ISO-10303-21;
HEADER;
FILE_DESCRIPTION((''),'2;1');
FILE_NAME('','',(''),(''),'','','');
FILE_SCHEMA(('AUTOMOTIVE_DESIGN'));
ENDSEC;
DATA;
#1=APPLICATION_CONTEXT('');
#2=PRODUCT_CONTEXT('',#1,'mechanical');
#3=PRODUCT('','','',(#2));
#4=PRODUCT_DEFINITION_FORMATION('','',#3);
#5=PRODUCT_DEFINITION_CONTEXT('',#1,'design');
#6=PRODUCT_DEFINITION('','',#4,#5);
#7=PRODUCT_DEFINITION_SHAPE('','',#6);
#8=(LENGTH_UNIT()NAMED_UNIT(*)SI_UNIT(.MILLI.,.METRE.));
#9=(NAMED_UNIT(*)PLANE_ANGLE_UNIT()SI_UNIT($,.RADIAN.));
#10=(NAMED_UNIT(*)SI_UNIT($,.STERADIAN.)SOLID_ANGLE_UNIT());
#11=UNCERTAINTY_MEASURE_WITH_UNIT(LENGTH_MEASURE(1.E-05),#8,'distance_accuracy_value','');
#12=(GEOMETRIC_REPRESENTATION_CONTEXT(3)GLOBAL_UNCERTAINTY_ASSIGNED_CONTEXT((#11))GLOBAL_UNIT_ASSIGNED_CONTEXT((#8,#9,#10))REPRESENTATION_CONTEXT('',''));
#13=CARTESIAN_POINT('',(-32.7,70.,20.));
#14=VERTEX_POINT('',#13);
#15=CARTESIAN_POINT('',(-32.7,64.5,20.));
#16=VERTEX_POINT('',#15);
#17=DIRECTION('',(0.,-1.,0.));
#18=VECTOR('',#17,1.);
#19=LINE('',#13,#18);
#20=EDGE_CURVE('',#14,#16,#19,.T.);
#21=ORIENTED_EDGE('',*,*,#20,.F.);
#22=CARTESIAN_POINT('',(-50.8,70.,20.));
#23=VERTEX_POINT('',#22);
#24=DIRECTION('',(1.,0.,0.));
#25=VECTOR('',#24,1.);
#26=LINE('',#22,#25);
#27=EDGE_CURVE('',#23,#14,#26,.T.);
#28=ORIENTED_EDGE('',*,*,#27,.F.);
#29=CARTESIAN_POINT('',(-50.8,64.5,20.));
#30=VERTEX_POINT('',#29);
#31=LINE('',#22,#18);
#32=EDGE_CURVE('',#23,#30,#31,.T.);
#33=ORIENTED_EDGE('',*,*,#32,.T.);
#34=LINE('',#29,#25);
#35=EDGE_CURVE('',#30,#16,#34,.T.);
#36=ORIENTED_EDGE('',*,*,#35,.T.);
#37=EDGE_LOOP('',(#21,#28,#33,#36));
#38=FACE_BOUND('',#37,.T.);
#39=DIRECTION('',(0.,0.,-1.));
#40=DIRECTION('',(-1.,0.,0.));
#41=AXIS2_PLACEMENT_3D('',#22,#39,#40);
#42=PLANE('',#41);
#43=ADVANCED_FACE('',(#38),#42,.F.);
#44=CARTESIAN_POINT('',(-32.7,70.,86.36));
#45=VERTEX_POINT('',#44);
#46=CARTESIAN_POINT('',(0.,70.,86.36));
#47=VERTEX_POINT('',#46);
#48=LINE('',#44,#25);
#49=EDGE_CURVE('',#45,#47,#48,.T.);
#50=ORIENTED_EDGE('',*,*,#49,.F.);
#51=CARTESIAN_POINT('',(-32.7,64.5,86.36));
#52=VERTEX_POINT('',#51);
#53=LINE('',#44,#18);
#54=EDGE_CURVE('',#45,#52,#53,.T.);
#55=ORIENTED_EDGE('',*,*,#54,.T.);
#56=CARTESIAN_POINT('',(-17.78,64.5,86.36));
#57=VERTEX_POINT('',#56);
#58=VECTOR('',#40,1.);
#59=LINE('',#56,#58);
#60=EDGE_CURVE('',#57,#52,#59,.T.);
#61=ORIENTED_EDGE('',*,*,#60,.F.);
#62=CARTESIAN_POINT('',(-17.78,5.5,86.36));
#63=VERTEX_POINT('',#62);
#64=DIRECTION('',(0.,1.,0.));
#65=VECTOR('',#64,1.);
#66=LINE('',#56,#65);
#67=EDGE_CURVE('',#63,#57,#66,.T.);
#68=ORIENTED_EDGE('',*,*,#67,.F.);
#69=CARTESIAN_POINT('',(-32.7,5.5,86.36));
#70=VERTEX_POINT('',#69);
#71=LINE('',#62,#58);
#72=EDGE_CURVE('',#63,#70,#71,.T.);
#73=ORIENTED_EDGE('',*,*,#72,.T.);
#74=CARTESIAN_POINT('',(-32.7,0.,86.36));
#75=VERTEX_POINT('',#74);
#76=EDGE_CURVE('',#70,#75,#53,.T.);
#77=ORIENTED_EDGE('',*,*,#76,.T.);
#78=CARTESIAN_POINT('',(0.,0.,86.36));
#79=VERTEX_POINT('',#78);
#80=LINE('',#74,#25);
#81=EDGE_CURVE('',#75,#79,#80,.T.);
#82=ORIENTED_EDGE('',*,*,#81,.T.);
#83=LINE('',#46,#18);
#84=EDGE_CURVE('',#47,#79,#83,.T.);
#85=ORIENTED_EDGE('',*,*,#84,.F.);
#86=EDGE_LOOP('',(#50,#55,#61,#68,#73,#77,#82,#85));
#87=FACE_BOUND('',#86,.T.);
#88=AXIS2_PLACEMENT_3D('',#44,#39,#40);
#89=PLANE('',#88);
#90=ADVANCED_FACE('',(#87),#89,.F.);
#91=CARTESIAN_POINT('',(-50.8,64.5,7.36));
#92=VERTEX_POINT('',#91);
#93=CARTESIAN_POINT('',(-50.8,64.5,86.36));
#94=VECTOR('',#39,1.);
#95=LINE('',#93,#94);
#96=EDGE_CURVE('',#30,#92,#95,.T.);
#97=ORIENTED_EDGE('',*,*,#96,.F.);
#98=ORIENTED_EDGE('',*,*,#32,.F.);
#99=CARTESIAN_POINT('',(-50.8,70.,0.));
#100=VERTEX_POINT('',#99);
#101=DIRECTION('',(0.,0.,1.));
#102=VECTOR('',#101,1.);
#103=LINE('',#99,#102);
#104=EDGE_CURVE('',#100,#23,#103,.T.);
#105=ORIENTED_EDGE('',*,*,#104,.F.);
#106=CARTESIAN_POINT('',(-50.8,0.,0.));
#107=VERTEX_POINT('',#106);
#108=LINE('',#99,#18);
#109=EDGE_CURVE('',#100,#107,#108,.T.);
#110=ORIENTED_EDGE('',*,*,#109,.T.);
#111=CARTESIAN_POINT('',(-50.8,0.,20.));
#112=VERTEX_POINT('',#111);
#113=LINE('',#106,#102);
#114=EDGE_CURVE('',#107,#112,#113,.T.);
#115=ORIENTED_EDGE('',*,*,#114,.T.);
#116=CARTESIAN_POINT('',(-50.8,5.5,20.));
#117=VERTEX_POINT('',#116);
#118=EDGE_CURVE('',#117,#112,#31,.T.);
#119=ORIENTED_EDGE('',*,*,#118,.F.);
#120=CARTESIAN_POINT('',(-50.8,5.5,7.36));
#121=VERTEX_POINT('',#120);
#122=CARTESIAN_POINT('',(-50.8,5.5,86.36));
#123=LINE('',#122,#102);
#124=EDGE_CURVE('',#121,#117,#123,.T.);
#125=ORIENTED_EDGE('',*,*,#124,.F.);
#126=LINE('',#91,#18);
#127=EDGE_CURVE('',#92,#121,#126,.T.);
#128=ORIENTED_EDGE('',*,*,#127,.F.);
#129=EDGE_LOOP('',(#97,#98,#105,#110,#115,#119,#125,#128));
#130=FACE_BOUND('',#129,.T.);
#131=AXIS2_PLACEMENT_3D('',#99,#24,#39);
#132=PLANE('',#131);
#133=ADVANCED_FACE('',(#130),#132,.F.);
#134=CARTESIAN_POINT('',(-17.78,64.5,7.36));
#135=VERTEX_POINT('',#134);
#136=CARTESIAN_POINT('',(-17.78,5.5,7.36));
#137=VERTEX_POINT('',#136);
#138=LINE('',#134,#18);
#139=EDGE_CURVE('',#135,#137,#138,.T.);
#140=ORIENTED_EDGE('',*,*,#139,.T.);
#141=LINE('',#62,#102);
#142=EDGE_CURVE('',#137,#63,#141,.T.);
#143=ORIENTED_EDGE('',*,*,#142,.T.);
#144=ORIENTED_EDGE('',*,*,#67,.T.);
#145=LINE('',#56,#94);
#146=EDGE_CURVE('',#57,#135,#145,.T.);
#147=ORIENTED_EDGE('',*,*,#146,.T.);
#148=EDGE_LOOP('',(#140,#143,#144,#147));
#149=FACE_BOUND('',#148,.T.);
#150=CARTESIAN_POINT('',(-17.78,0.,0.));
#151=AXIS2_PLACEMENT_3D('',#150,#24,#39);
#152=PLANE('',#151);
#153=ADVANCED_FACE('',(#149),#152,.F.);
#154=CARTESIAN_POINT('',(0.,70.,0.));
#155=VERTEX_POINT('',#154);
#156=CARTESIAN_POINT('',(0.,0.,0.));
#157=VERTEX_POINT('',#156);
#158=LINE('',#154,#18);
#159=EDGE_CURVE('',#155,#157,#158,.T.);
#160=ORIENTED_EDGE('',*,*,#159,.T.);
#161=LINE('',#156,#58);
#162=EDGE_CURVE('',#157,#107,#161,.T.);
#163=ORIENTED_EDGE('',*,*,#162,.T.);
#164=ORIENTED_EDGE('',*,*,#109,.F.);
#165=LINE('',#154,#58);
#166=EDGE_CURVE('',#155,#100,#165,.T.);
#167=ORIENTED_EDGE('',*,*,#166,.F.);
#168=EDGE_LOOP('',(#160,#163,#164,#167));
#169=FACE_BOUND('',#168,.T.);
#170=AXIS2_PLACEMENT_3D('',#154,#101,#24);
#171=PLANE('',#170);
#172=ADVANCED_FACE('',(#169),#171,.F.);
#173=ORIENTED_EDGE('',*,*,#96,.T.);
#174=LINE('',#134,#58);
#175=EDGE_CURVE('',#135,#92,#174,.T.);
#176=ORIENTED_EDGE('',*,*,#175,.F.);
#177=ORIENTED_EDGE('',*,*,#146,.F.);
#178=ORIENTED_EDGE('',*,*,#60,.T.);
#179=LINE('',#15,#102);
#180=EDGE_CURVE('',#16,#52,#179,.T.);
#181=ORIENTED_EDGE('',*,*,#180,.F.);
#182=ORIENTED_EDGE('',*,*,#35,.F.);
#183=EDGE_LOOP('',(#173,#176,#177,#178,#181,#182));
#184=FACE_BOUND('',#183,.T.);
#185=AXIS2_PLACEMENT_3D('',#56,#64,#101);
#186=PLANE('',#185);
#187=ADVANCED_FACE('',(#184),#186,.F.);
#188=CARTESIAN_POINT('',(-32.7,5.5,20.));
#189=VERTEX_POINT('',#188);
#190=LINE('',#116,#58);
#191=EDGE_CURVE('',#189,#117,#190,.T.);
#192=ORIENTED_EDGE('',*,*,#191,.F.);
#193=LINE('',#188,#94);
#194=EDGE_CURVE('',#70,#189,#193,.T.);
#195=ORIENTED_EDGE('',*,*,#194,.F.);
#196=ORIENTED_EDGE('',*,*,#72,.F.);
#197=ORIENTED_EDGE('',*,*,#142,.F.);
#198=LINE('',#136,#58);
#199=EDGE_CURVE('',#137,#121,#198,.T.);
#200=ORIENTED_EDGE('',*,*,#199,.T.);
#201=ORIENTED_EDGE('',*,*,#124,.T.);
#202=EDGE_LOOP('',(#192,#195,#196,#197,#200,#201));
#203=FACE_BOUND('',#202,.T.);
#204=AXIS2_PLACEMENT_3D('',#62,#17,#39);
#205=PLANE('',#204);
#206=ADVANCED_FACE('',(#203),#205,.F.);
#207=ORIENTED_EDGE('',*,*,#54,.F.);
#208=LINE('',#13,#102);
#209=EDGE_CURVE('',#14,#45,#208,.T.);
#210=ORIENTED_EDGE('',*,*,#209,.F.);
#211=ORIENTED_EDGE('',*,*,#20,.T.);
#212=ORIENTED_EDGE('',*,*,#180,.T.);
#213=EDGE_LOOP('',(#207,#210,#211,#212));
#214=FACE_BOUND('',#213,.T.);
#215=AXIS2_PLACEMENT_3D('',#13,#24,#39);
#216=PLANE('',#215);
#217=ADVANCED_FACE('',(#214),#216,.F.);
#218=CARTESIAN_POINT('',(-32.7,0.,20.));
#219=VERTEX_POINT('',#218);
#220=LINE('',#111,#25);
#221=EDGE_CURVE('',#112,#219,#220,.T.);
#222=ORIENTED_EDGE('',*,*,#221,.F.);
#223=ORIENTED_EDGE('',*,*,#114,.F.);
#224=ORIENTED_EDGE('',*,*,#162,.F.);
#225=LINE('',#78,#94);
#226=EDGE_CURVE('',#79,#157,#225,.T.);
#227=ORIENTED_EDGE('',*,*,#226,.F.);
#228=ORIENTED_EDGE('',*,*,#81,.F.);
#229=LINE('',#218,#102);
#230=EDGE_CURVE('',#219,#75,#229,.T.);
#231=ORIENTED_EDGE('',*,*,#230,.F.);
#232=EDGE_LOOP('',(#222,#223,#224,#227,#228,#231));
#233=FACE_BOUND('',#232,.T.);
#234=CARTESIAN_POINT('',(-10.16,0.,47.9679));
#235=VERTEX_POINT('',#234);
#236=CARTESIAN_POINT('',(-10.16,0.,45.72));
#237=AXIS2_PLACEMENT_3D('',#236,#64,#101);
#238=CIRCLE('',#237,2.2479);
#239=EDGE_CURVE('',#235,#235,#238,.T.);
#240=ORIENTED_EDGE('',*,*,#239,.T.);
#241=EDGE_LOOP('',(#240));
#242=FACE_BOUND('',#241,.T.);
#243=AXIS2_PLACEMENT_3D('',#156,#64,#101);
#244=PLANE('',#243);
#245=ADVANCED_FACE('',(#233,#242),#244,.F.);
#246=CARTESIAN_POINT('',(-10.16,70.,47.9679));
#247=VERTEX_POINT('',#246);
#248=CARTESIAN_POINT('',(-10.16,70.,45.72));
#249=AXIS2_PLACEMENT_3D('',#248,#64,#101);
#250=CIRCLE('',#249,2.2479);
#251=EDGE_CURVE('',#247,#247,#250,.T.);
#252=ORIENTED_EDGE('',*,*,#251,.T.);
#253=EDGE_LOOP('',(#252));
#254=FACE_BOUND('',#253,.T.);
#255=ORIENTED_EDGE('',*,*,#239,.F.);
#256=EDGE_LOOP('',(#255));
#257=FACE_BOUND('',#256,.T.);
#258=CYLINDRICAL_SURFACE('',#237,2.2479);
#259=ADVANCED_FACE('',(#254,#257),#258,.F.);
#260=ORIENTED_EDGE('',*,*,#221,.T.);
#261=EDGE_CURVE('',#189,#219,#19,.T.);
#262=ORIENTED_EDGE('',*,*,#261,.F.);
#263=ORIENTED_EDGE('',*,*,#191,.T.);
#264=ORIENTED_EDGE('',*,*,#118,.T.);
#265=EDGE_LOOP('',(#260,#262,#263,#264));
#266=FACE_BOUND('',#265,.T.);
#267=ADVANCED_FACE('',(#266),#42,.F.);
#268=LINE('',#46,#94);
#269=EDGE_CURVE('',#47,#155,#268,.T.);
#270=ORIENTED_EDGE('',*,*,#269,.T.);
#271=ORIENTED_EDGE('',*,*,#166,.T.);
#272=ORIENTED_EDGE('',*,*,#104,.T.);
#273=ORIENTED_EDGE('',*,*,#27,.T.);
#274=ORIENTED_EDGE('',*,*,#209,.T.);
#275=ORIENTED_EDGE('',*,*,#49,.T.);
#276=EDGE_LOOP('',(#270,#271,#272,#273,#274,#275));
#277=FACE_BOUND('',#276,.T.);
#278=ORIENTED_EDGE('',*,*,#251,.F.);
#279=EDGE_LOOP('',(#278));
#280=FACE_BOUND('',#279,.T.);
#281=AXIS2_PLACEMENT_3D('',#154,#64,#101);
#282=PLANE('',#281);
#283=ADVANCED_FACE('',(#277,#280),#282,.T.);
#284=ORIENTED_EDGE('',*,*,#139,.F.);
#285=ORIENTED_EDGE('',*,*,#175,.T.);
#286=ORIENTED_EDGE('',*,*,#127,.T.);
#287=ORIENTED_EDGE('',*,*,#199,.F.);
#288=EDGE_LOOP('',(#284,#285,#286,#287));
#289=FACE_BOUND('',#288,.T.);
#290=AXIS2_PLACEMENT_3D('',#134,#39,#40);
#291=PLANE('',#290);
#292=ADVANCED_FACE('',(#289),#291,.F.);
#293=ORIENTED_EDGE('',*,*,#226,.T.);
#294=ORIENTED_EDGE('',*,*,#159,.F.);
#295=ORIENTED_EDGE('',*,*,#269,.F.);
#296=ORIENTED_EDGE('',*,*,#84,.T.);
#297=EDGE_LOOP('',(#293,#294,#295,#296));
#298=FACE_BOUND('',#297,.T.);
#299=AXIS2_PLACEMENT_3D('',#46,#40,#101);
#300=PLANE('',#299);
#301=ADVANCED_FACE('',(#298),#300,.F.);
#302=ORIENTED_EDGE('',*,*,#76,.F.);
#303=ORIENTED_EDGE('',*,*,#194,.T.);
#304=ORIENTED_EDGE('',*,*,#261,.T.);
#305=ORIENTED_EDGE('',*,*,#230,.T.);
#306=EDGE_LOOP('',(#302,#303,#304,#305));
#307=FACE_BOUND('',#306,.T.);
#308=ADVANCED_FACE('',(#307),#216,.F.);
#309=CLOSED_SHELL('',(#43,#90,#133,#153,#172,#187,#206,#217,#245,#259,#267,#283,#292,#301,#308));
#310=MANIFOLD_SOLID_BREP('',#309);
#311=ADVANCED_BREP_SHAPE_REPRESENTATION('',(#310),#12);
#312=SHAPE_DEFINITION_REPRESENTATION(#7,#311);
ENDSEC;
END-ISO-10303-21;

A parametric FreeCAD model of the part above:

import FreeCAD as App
import Part
import Sketcher


def add_polygon(sketch, points):
    """Adds a closed chain of lines whose ends are joined by coincident constraints."""
    first, n = sketch.GeometryCount, len(points)
    for a, b in zip(points, points[1:] + points[:1]):
        sketch.addGeometry(Part.LineSegment(App.Vector(*a, 0), App.Vector(*b, 0)), False)
    for i in range(n):
        sketch.addConstraint(Sketcher.Constraint("Coincident", first + i, 2, first + (i + 1) % n, 1))

doc = App.newDocument("Part")
body = doc.addObject("PartDesign::Body", "Body")

# Sketch on XZ plane
sketch1 = body.newObject("Sketcher::SketchObject", "Sketch")
sketch1.AttachmentSupport = (doc.getObject("XZ_Plane"), [""])
sketch1.MapMode = "FlatFace"
add_polygon(sketch1, [(-51, 20), (-33, 20), (-33, 86), (0, 86), (0, 0), (-51, 0)])  # lines 0-5
sketch1.addConstraint(Sketcher.Constraint("Horizontal", 0))
sketch1.addConstraint(Sketcher.Constraint("Vertical", 1))
sketch1.addConstraint(Sketcher.Constraint("Horizontal", 2))
sketch1.addConstraint(Sketcher.Constraint("Vertical", 3))
sketch1.addConstraint(Sketcher.Constraint("Horizontal", 4))
sketch1.addConstraint(Sketcher.Constraint("Vertical", 5))
sketch1.addConstraint(Sketcher.Constraint("Coincident", 3, 2, -1, 1))
sketch1.addConstraint(Sketcher.Constraint("DistanceY", 5, 1, 5, 2, 20.0))
sketch1.addConstraint(Sketcher.Constraint("DistanceX", 0, 1, 0, 2, 18.1))
sketch1.addConstraint(Sketcher.Constraint("DistanceX", 2, 1, 2, 2, 32.7))
sketch1.addConstraint(Sketcher.Constraint("DistanceY", 1, 1, 1, 2, 66.36))
pad1 = body.newObject("PartDesign::Pad", "Pad")
pad1.Profile = sketch1
pad1.Length = 70
pad1.Reversed = True

# Sketch on YZ plane
sketch2 = body.newObject("Sketcher::SketchObject", "Sketch001")
sketch2.AttachmentSupport = (doc.getObject("YZ_Plane"), [""])
sketch2.MapMode = "FlatFace"
sketch2.AttachmentOffset = App.Placement(App.Vector(0, 0, -50.8), App.Rotation())
add_polygon(sketch2, [(64, 7), (6, 7), (6, 86), (64, 86)])  # lines 0-3
sketch2.addConstraint(Sketcher.Constraint("Horizontal", 0))
sketch2.addConstraint(Sketcher.Constraint("Vertical", 1))
sketch2.addConstraint(Sketcher.Constraint("Horizontal", 2))
sketch2.addConstraint(Sketcher.Constraint("Vertical", 3))
sketch2.addConstraint(Sketcher.Constraint("DistanceX", 0, 2, 0, 1, 59.0))
sketch2.addConstraint(Sketcher.Constraint("DistanceY", 1, 1, 1, 2, 79.0))
sketch2.addConstraint(Sketcher.Constraint("DistanceX", -1, 1, 0, 2, 5.5))
sketch2.addConstraint(Sketcher.Constraint("DistanceY", -1, 1, 0, 2, 7.36))
pocket1 = body.newObject("PartDesign::Pocket", "Pocket")
pocket1.Profile = sketch2
pocket1.Length = 33.02
pocket1.Reversed = True

# Sketch on XZ plane
sketch3 = body.newObject("Sketcher::SketchObject", "Sketch002")
sketch3.AttachmentSupport = (doc.getObject("XZ_Plane"), [""])
sketch3.MapMode = "FlatFace"
sketch3.AttachmentOffset = App.Placement(App.Vector(0, 0, -70), App.Rotation())
sketch3.addGeometry(Part.Circle(App.Vector(-10.2, 45.7, 0), App.Vector(0, 0, 1), 2.2), False)
sketch3.addConstraint(Sketcher.Constraint("Diameter", 0, 4.4958))
sketch3.addConstraint(Sketcher.Constraint("DistanceX", 0, 3, -1, 1, 10.16))
sketch3.addConstraint(Sketcher.Constraint("DistanceY", -1, 1, 0, 3, 45.72))
pocket2 = body.newObject("PartDesign::Pocket", "Pocket001")
pocket2.Profile = sketch3
pocket2.Type = "ThroughAll"
pocket2.Reversed = True

doc.recompute()
